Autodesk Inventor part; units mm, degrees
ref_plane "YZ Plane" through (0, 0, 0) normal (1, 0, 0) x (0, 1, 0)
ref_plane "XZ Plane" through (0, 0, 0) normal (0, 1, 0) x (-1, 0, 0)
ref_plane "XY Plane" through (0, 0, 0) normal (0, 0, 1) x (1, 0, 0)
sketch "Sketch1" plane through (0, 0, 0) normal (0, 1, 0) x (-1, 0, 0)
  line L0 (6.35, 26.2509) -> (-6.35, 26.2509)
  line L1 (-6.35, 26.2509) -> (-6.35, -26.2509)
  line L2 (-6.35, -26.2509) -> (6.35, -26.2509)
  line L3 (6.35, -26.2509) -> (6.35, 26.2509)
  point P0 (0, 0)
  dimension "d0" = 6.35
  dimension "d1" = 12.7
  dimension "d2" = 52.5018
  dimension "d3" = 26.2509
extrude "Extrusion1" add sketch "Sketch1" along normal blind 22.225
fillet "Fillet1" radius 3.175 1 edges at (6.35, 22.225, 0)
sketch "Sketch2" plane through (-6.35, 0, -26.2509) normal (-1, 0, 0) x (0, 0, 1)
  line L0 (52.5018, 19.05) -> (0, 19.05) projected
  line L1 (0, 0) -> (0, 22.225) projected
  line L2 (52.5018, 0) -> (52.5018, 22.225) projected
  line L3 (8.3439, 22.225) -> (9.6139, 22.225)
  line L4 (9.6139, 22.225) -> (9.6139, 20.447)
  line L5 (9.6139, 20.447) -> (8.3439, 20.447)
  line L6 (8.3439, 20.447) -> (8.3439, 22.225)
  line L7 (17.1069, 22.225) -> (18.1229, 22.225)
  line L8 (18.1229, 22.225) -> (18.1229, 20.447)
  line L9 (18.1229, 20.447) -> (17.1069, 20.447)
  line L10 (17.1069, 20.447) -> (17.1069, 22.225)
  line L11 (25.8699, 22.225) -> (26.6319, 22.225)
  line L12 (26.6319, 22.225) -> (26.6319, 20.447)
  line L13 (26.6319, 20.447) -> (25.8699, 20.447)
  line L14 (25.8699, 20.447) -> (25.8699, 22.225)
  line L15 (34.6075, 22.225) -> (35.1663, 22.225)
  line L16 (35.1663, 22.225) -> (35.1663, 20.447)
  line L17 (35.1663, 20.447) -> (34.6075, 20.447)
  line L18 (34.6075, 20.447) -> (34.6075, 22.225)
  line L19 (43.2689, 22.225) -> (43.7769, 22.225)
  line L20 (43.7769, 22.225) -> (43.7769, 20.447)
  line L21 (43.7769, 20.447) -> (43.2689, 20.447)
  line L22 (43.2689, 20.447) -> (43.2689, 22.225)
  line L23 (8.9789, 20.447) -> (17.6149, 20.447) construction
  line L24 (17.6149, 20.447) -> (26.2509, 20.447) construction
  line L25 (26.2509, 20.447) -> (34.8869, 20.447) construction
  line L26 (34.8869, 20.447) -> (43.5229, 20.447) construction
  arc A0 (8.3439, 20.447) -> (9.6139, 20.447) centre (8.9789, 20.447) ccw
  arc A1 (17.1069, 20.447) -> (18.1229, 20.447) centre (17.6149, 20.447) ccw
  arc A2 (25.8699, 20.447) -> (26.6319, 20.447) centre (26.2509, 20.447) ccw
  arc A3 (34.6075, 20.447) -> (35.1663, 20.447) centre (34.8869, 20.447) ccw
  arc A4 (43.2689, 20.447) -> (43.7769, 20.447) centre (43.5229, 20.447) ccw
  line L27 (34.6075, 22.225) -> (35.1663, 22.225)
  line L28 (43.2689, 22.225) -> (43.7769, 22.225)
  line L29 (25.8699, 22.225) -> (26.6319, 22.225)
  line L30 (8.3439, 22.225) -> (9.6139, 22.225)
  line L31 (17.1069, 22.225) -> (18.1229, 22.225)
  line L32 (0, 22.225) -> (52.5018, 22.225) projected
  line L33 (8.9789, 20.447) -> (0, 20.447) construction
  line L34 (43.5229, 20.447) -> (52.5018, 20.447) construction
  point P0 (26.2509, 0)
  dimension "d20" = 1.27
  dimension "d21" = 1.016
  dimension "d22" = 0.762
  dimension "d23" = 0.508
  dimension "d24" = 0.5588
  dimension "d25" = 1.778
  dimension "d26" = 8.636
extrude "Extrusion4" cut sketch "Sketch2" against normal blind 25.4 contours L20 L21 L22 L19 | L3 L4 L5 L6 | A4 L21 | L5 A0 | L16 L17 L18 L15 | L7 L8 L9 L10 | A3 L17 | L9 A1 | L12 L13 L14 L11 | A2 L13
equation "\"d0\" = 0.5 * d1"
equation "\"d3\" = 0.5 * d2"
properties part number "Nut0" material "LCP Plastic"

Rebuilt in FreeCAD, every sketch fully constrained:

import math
import FreeCAD as App
import Part
import Sketcher

V = App.Vector
Q = App.Units.Quantity


def edges_at(feature, points):
    """Names of the edges that pass closest to the given points."""
    edges = feature.Shape.Edges
    near = lambda p: min(range(len(edges)), key=lambda i: edges[i].distToShape(Part.Vertex(*p))[0])
    return sorted({f"Edge{near(p) + 1}" for p in points})

doc = App.newDocument("Part")
body = doc.addObject("PartDesign::Body", "Body")

sketch1 = doc.addObject("Sketcher::SketchObject", "Sketch")
body.addObject(sketch1)
sketch1.AttachmentSupport = (doc.XZ_Plane, [""])
sketch1.MapMode = "FlatFace"
sketch1.addGeometry(Part.LineSegment(V(-6.35, -26.2509, 0), V(-6.35, 26.2509, 0)), False)
sketch1.addGeometry(Part.LineSegment(V(-6.35, 26.2509, 0), V(6.35, 26.2509, 0)), False)
sketch1.addGeometry(Part.LineSegment(V(6.35, 26.2509, 0), V(6.35, -26.2509, 0)), False)
sketch1.addGeometry(Part.LineSegment(V(6.35, -26.2509, 0), V(-6.35, -26.2509, 0)), False)
sketch1.addConstraint(Sketcher.Constraint("Coincident", 0, 2, 1, 1))
sketch1.addConstraint(Sketcher.Constraint("Coincident", 1, 2, 2, 1))
sketch1.addConstraint(Sketcher.Constraint("Coincident", 2, 2, 3, 1))
sketch1.addConstraint(Sketcher.Constraint("Coincident", 3, 2, 0, 1))
sketch1.addConstraint(Sketcher.Constraint("Vertical", 0))
sketch1.addConstraint(Sketcher.Constraint("Horizontal", 1))
sketch1.addConstraint(Sketcher.Constraint("Vertical", 2))
sketch1.addConstraint(Sketcher.Constraint("Horizontal", 3))
sketch1.addConstraint(Sketcher.Constraint("Symmetric", 0, 2, 2, 2, -1, 1))
sketch1.addConstraint(Sketcher.Constraint("DistanceX", 1, 1, 1, 2, Q("0.5 in")))
sketch1.addConstraint(Sketcher.Constraint("DistanceY", 0, 1, 0, 2, Q("2.067 in")))
pad1 = doc.addObject("PartDesign::Pad", "Pad")
body.addObject(pad1)
pad1.Profile = sketch1
pad1.Length = Q("0.875 in")
pad1.Reversed = True
doc.recompute()

fillet = doc.addObject("PartDesign::Fillet", "Fillet")
body.addObject(fillet)
fillet.Base = (pad1, edges_at(pad1, [(6.35, 22.225, 0)]))
fillet.Radius = Q("0.125 in")

sketch2 = doc.addObject("Sketcher::SketchObject", "Sketch001")
body.addObject(sketch2)
sketch2.AttachmentSupport = (doc.YZ_Plane, [""])
sketch2.MapMode = "FlatFace"
sketch2.AttachmentOffset = App.Placement(V(0, 0, -0.25 * 25.4), App.Rotation())
sketch2.addGeometry(Part.LineSegment(V(20.447, 17.526, 0), V(22.225, 17.526, 0)), False)
sketch2.addGeometry(Part.LineSegment(V(22.225, 17.526, 0), V(22.225, 17.018, 0)), False)
sketch2.addGeometry(Part.LineSegment(V(22.225, 17.018, 0), V(20.447, 17.018, 0)), False)
sketch2.addGeometry(Part.ArcOfCircle(Part.Circle(V(20.447, 17.272, 0), V(0, 0, 1), 0.254), math.radians(90), math.radians(270)), False)
sketch2.addGeometry(Part.LineSegment(V(22.225, -16.637, 0), V(22.225, -17.907, 0)), False)
sketch2.addGeometry(Part.LineSegment(V(22.225, -17.907, 0), V(20.447, -17.907, 0)), False)
sketch2.addGeometry(Part.ArcOfCircle(Part.Circle(V(20.447, -17.272, 0), V(0, 0, 1), 0.635), math.radians(90), math.radians(270)), False)
sketch2.addGeometry(Part.LineSegment(V(20.447, -16.637, 0), V(22.225, -16.637, 0)), False)
sketch2.addGeometry(Part.LineSegment(V(20.447, 8.9154, 0), V(22.225, 8.9154, 0)), False)
sketch2.addGeometry(Part.LineSegment(V(22.225, 8.9154, 0), V(22.225, 8.3566, 0)), False)
sketch2.addGeometry(Part.LineSegment(V(22.225, 8.3566, 0), V(20.447, 8.3566, 0)), False)
sketch2.addGeometry(Part.ArcOfCircle(Part.Circle(V(20.447, 8.636, 0), V(0, 0, 1), 0.2794), math.radians(90), math.radians(270)), False)
sketch2.addGeometry(Part.LineSegment(V(22.225, -8.128, 0), V(22.225, -9.144, 0)), False)
sketch2.addGeometry(Part.LineSegment(V(22.225, -9.144, 0), V(20.447, -9.144, 0)), False)
sketch2.addGeometry(Part.ArcOfCircle(Part.Circle(V(20.447, -8.636, 0), V(0, 0, 1), 0.508), math.radians(90), math.radians(270)), False)
sketch2.addGeometry(Part.LineSegment(V(20.447, -8.128, 0), V(22.225, -8.128, 0)), False)
sketch2.addGeometry(Part.LineSegment(V(20.447, 0.381, 0), V(22.225, 0.381, 0)), False)
sketch2.addGeometry(Part.LineSegment(V(22.225, 0.381, 0), V(22.225, -0.381, 0)), False)
sketch2.addGeometry(Part.LineSegment(V(22.225, -0.381, 0), V(20.447, -0.381, 0)), False)
sketch2.addGeometry(Part.ArcOfCircle(Part.Circle(V(20.447, 0, 0), V(0, 0, 1), 0.381), math.radians(90), math.radians(270)), False)
sketch2.addConstraint(Sketcher.Constraint("Coincident", 0, 2, 1, 1))
sketch2.addConstraint(Sketcher.Constraint("Coincident", 1, 2, 2, 1))
sketch2.addConstraint(Sketcher.Constraint("Tangent", 2, 2, 3, 2))
sketch2.addConstraint(Sketcher.Constraint("Tangent", 3, 1, 0, 1))
sketch2.addConstraint(Sketcher.Constraint("Coincident", 4, 2, 5, 1))
sketch2.addConstraint(Sketcher.Constraint("Tangent", 5, 2, 6, 2))
sketch2.addConstraint(Sketcher.Constraint("Tangent", 6, 1, 7, 1))
sketch2.addConstraint(Sketcher.Constraint("Coincident", 7, 2, 4, 1))
sketch2.addConstraint(Sketcher.Constraint("Coincident", 8, 2, 9, 1))
sketch2.addConstraint(Sketcher.Constraint("Coincident", 9, 2, 10, 1))
sketch2.addConstraint(Sketcher.Constraint("Tangent", 10, 2, 11, 2))
sketch2.addConstraint(Sketcher.Constraint("Tangent", 11, 1, 8, 1))
sketch2.addConstraint(Sketcher.Constraint("Coincident", 12, 2, 13, 1))
sketch2.addConstraint(Sketcher.Constraint("Tangent", 13, 2, 14, 2))
sketch2.addConstraint(Sketcher.Constraint("Tangent", 14, 1, 15, 1))
sketch2.addConstraint(Sketcher.Constraint("Coincident", 15, 2, 12, 1))
sketch2.addConstraint(Sketcher.Constraint("Coincident", 16, 2, 17, 1))
sketch2.addConstraint(Sketcher.Constraint("Coincident", 17, 2, 18, 1))
sketch2.addConstraint(Sketcher.Constraint("Tangent", 18, 2, 19, 2))
sketch2.addConstraint(Sketcher.Constraint("Tangent", 19, 1, 16, 1))
sketch2.addConstraint(Sketcher.Constraint("Horizontal", 0))
sketch2.addConstraint(Sketcher.Constraint("Vertical", 1))
sketch2.addConstraint(Sketcher.Constraint("Horizontal", 2))
sketch2.addConstraint(Sketcher.Constraint("Vertical", 4))
sketch2.addConstraint(Sketcher.Constraint("Horizontal", 5))
sketch2.addConstraint(Sketcher.Constraint("Horizontal", 7))
sketch2.addConstraint(Sketcher.Constraint("Horizontal", 8))
sketch2.addConstraint(Sketcher.Constraint("Vertical", 9))
sketch2.addConstraint(Sketcher.Constraint("Horizontal", 10))
sketch2.addConstraint(Sketcher.Constraint("Vertical", 12))
sketch2.addConstraint(Sketcher.Constraint("Horizontal", 13))
sketch2.addConstraint(Sketcher.Constraint("Horizontal", 15))
sketch2.addConstraint(Sketcher.Constraint("Horizontal", 16))
sketch2.addConstraint(Sketcher.Constraint("Vertical", 17))
sketch2.addConstraint(Sketcher.Constraint("Horizontal", 18))
sketch2.addConstraint(Sketcher.Constraint("Symmetric", 3, 3, 6, 3, -1))
sketch2.addConstraint(Sketcher.Constraint("Symmetric", 11, 3, 14, 3, -1))
sketch2.addConstraint(Sketcher.Constraint("PointOnObject", 19, 3, -1))
sketch2.addConstraint(Sketcher.Constraint("Vertical", 6, 3, 11, 3))
sketch2.addConstraint(Sketcher.Constraint("Vertical", 14, 3, 19, 3))
sketch2.addConstraint(Sketcher.Constraint("Vertical", 1, 2, 4, 2))
sketch2.addConstraint(Sketcher.Constraint("Vertical", 7, 2, 8, 2))
sketch2.addConstraint(Sketcher.Constraint("Vertical", 9, 2, 12, 2))
sketch2.addConstraint(Sketcher.Constraint("Vertical", 15, 2, 16, 2))
sketch2.addConstraint(Sketcher.Constraint("Radius", 3, Q("0.01 in")))
sketch2.addConstraint(Sketcher.Constraint("Radius", 14, Q("0.02 in")))
sketch2.addConstraint(Sketcher.Constraint("Radius", 6, Q("0.025 in")))
sketch2.addConstraint(Sketcher.Constraint("Radius", 11, Q("0.011 in")))
sketch2.addConstraint(Sketcher.Constraint("Radius", 19, Q("0.015 in")))
sketch2.addConstraint(Sketcher.Constraint("DistanceX", 0, 1, 0, 2, Q("0.07 in")))
sketch2.addConstraint(Sketcher.Constraint("DistanceY", -1, 1, 11, 3, Q("0.34 in")))
sketch2.addConstraint(Sketcher.Constraint("DistanceY", 11, 3, 3, 3, Q("0.34 in")))
sketch2.addConstraint(Sketcher.Constraint("DistanceX", -1, 1, 3, 3, Q("0.805 in")))
pocket1 = doc.addObject("PartDesign::Pocket", "Pocket")
body.addObject(pocket1)
pocket1.Profile = sketch2
pocket1.Length = Q("1 in")
pocket1.Reversed = True

doc.recompute()
